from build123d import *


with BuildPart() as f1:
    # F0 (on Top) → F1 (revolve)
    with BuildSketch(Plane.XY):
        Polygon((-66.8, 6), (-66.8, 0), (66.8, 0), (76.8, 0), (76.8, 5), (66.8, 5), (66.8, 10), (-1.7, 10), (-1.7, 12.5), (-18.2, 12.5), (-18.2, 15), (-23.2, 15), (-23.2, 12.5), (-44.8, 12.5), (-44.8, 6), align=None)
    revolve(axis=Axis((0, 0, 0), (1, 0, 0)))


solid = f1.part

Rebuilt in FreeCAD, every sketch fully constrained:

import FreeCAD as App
import Part
import Sketcher
Q = App.Units.Quantity

doc = App.newDocument("Part")
params = doc.addObject("Spreadsheet::Sheet", "Params")
for row, (alias, value) in enumerate([
    ("sketch1_width", "10 mm"),
    ("sketch1_width2", "5 mm"),
    ("sketch1_width3", "22 mm"),
    ("sketch1_height", "6 mm"),
    ("sketch1_width4", "143.6 mm"),
    ("revolution_angle", "360 deg"),
], start=1):
    params.set(f"A{row}", alias)
    params.set(f"B{row}", "=" + value)
    params.setAlias(f"B{row}", alias)

body = doc.addObject("PartDesign::Body", "Body")

# Sketch on XY plane
sketch1 = body.newObject("Sketcher::SketchObject", "Sketch")
sketch1.AttachmentSupport = (doc.getObject("XY_Plane"), [""])
sketch1.MapMode = "FlatFace"
sketch1.addGeometry(Part.LineSegment(App.Vector(-66.8, 6, 0), App.Vector(-66.8, 0, 0)), False)
sketch1.addGeometry(Part.LineSegment(App.Vector(-66.8, 0, 0), App.Vector(76.8, 0, 0)), False)
sketch1.addGeometry(Part.LineSegment(App.Vector(76.8, 0, 0), App.Vector(76.8, 5, 0)), False)
sketch1.addGeometry(Part.LineSegment(App.Vector(76.8, 5, 0), App.Vector(66.8, 5, 0)), False)
sketch1.addGeometry(Part.LineSegment(App.Vector(66.8, 5, 0), App.Vector(66.8, 10, 0)), False)
sketch1.addGeometry(Part.LineSegment(App.Vector(66.8, 10, 0), App.Vector(-1.7, 10, 0)), False)
sketch1.addGeometry(Part.LineSegment(App.Vector(-1.7, 10, 0), App.Vector(-1.7, 12.5, 0)), False)
sketch1.addGeometry(Part.LineSegment(App.Vector(-1.7, 12.5, 0), App.Vector(-18.2, 12.5, 0)), False)
sketch1.addGeometry(Part.LineSegment(App.Vector(-18.2, 12.5, 0), App.Vector(-18.2, 15, 0)), False)
sketch1.addGeometry(Part.LineSegment(App.Vector(-18.2, 15, 0), App.Vector(-23.2, 15, 0)), False)
sketch1.addGeometry(Part.LineSegment(App.Vector(-23.2, 15, 0), App.Vector(-23.2, 12.5, 0)), False)
sketch1.addGeometry(Part.LineSegment(App.Vector(-23.2, 12.5, 0), App.Vector(-44.8, 12.5, 0)), False)
sketch1.addGeometry(Part.LineSegment(App.Vector(-44.8, 12.5, 0), App.Vector(-44.8, 6, 0)), False)
sketch1.addGeometry(Part.LineSegment(App.Vector(-44.8, 6, 0), App.Vector(-66.8, 6, 0)), False)
sketch1.addConstraint(Sketcher.Constraint("Coincident", 0, 2, 1, 1))
sketch1.addConstraint(Sketcher.Constraint("Coincident", 1, 2, 2, 1))
sketch1.addConstraint(Sketcher.Constraint("Coincident", 2, 2, 3, 1))
sketch1.addConstraint(Sketcher.Constraint("Coincident", 3, 2, 4, 1))
sketch1.addConstraint(Sketcher.Constraint("Coincident", 4, 2, 5, 1))
sketch1.addConstraint(Sketcher.Constraint("Coincident", 5, 2, 6, 1))
sketch1.addConstraint(Sketcher.Constraint("Coincident", 6, 2, 7, 1))
sketch1.addConstraint(Sketcher.Constraint("Coincident", 7, 2, 8, 1))
sketch1.addConstraint(Sketcher.Constraint("Coincident", 8, 2, 9, 1))
sketch1.addConstraint(Sketcher.Constraint("Coincident", 9, 2, 10, 1))
sketch1.addConstraint(Sketcher.Constraint("Coincident", 10, 2, 11, 1))
sketch1.addConstraint(Sketcher.Constraint("Coincident", 11, 2, 12, 1))
sketch1.addConstraint(Sketcher.Constraint("Coincident", 12, 2, 13, 1))
sketch1.addConstraint(Sketcher.Constraint("Coincident", 13, 2, 0, 1))
sketch1.addConstraint(Sketcher.Constraint("Vertical", 0))
sketch1.addConstraint(Sketcher.Constraint("Horizontal", 1))
sketch1.addConstraint(Sketcher.Constraint("Vertical", 2))
sketch1.addConstraint(Sketcher.Constraint("Horizontal", 3))
sketch1.addConstraint(Sketcher.Constraint("Vertical", 4))
sketch1.addConstraint(Sketcher.Constraint("Horizontal", 5))
sketch1.addConstraint(Sketcher.Constraint("Vertical", 6))
sketch1.addConstraint(Sketcher.Constraint("Horizontal", 7))
sketch1.addConstraint(Sketcher.Constraint("Vertical", 8))
sketch1.addConstraint(Sketcher.Constraint("Horizontal", 9))
sketch1.addConstraint(Sketcher.Constraint("Vertical", 10))
sketch1.addConstraint(Sketcher.Constraint("Horizontal", 11))
sketch1.addConstraint(Sketcher.Constraint("Vertical", 12))
sketch1.addConstraint(Sketcher.Constraint("Horizontal", 13))
sketch1.addConstraint(Sketcher.Constraint("PointOnObject", 0, 2, -1))
sketch1.addConstraint(Sketcher.Constraint("Horizontal", 7, 2, 10, 2))
sketch1.addConstraint(Sketcher.Constraint("Equal", 9, 2))
sketch1.addConstraint(Sketcher.Constraint("Equal", 2, 4))
sketch1.addConstraint(Sketcher.Constraint("Equal", 6, 8))
sketch1.addConstraint(Sketcher.Constraint("DistanceX", 3, 2, 3, 1, Q("10 mm")))
sketch1.addConstraint(Sketcher.Constraint("DistanceX", 9, 2, 9, 1, Q("5 mm")))
sketch1.addConstraint(Sketcher.Constraint("DistanceX", 13, 2, 13, 1, Q("22 mm")))
sketch1.addConstraint(Sketcher.Constraint("DistanceY", 0, 2, 0, 1, Q("6 mm")))
sketch1.addConstraint(Sketcher.Constraint("DistanceX", 1, 1, 1, 2, Q("143.6 mm")))
sketch1.addConstraint(Sketcher.Constraint("DistanceX", 5, 2, 5, 1, Q("68.5 mm")))
sketch1.addConstraint(Sketcher.Constraint("DistanceX", 7, 2, 7, 1, Q("16.5 mm")))
sketch1.addConstraint(Sketcher.Constraint("DistanceY", 6, 1, 6, 2, Q("2.5 mm")))
sketch1.addConstraint(Sketcher.Constraint("DistanceX", 0, 2, -1, 1, Q("66.8 mm")))
sketch1.setExpression("Constraints[33]", "Params.sketch1_width")
sketch1.setExpression("Constraints[34]", "Params.sketch1_width2")
sketch1.setExpression("Constraints[35]", "Params.sketch1_width3")
sketch1.setExpression("Constraints[36]", "Params.sketch1_height")
sketch1.setExpression("Constraints[37]", "Params.sketch1_width4")
revolution = body.newObject("PartDesign::Revolution", "Revolution")
revolution.Profile = sketch1
revolution.ReferenceAxis = (sketch1, ["H_Axis"])
revolution.setExpression("Angle", "Params.revolution_angle")

doc.recompute()
